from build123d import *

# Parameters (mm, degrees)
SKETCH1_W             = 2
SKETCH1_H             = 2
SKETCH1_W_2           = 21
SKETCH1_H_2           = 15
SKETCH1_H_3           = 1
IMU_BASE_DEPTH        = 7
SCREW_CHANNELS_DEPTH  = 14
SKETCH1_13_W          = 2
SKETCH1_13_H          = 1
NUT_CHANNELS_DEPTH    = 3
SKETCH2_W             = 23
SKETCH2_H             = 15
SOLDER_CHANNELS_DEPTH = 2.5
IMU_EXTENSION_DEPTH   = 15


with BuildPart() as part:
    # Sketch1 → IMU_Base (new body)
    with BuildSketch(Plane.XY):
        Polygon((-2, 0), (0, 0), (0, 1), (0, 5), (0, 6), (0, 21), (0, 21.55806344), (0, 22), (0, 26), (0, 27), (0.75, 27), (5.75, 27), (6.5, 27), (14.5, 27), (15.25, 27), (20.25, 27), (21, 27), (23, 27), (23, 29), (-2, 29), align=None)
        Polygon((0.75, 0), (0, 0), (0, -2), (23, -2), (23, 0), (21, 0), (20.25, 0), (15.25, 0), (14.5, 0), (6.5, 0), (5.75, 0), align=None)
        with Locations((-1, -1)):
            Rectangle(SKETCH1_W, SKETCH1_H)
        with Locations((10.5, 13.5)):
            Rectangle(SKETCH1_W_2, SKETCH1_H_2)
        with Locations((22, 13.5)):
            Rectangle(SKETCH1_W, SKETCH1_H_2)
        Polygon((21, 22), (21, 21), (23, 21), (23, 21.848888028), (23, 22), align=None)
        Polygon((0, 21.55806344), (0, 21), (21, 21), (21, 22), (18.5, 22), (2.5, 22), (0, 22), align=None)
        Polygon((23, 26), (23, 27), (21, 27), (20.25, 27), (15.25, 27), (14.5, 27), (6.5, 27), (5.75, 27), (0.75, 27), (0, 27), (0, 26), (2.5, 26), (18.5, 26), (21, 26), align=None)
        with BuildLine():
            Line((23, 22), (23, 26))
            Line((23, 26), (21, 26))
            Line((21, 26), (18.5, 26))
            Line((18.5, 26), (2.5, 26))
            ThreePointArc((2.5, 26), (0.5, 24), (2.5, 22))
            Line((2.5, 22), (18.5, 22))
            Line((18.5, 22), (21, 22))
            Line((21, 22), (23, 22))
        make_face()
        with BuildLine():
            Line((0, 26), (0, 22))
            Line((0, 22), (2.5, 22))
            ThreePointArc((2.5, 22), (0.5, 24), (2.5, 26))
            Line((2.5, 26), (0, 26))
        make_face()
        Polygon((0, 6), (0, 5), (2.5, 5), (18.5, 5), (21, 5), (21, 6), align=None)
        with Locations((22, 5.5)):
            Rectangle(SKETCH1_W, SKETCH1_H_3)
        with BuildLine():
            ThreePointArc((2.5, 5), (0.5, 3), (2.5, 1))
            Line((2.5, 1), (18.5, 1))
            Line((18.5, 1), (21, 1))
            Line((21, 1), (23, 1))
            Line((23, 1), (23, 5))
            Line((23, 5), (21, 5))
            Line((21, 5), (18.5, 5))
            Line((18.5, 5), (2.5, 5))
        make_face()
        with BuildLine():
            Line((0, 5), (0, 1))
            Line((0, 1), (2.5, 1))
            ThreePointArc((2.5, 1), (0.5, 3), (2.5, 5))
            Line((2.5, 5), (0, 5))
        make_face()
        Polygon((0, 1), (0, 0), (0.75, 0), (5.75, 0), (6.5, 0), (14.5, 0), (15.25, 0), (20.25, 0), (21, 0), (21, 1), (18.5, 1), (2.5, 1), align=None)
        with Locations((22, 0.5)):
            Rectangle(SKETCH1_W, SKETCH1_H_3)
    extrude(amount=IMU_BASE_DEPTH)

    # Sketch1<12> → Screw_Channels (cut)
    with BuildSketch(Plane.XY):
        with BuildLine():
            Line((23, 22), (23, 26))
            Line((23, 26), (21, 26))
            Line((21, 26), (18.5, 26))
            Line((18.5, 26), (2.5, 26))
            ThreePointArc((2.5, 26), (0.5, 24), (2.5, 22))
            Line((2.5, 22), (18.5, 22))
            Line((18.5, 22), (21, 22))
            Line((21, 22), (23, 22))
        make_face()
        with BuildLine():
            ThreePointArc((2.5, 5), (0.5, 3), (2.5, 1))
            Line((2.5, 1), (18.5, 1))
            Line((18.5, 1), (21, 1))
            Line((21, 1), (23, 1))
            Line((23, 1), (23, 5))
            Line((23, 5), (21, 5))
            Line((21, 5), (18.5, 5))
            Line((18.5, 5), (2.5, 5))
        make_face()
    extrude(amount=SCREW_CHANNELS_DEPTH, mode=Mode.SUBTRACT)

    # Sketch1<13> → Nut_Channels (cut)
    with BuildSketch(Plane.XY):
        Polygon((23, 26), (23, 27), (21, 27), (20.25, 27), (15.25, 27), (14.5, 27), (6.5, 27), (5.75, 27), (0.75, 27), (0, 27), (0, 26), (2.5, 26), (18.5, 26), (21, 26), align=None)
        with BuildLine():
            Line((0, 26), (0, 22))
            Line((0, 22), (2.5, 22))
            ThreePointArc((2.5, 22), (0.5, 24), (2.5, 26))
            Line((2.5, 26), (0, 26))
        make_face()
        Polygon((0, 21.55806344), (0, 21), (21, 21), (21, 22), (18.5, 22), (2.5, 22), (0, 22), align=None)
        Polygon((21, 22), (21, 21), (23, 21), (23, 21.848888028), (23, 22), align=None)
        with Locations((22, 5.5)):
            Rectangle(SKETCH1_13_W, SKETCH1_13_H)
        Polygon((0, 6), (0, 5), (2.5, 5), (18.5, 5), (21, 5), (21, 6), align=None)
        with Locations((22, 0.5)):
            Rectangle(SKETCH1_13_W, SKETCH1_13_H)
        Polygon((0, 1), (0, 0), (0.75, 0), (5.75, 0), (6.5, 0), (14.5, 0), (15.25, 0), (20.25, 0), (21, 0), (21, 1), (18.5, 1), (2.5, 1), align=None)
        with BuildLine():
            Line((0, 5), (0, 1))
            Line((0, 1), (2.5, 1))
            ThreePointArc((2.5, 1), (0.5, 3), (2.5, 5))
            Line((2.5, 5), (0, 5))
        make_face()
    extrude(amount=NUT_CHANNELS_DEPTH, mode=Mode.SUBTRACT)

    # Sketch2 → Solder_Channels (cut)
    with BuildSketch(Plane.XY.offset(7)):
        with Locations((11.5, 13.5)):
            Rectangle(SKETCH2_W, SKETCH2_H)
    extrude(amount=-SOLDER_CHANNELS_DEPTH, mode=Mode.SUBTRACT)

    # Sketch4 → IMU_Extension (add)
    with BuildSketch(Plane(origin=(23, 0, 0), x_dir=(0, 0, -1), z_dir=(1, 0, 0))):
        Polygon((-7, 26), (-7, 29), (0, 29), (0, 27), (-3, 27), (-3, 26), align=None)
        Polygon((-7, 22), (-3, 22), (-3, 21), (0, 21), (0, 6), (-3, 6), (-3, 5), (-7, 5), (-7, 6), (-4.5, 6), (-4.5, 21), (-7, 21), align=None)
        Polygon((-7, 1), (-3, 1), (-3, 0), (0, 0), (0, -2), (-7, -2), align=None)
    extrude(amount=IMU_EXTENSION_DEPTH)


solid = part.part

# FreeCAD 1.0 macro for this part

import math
import FreeCAD as App
import Part
import Sketcher
from FreeCAD import Vector


def add_polygon(sketch, points):
    """Adds a closed chain of lines whose ends are joined by coincident constraints."""
    first, n = sketch.GeometryCount, len(points)
    for a, b in zip(points, points[1:] + points[:1]):
        sketch.addGeometry(Part.LineSegment(App.Vector(*a, 0), App.Vector(*b, 0)), False)
    for i in range(n):
        sketch.addConstraint(Sketcher.Constraint("Coincident", first + i, 2, first + (i + 1) % n, 1))

doc = App.newDocument("Part")
params = doc.addObject("Spreadsheet::Sheet", "Params")
for row, (alias, value) in enumerate([
    ("sketch1_width", "25 mm"),
    ("sketch1_height", "31 mm"),
    ("pad1_length", "7 mm"),
    ("sketch2_radius", "2 mm"),
    ("sketch2_width", "20.5 mm"),
    ("pocket1_length", "14 mm"),
    ("sketch3_radius", "2 mm"),
    ("sketch3_width", "23 mm"),
    ("sketch3_height", "1 mm"),
    ("sketch3_width2", "20.5 mm"),
    ("pocket2_length", "3 mm"),
    ("sketch4_width", "23 mm"),
    ("sketch4_height", "15 mm"),
    ("pocket3_length", "2.5 mm"),
    ("sketch5_width", "3 mm"),
    ("sketch5_width2", "1 mm"),
    ("sketch5_width3", "15 mm"),
    ("sketch5_height", "4 mm"),
    ("sketch5_height2", "2.5 mm"),
    ("pad2_length", "15 mm"),
], start=1):
    params.set(f"A{row}", alias)
    params.set(f"B{row}", "=" + value)
    params.setAlias(f"B{row}", alias)

body = doc.addObject("PartDesign::Body", "Body")

sketch1 = body.newObject("Sketcher::SketchObject", "Sketch")
sketch1.AttachmentSupport = (doc.getObject("XY_Plane"), [""])
sketch1.MapMode = "FlatFace"
add_polygon(sketch1, [(23, 29), (-2, 29), (-2, -2), (23, -2)])
sketch1.addConstraint(Sketcher.Constraint("Horizontal", 0))
sketch1.addConstraint(Sketcher.Constraint("Vertical", 1))
sketch1.addConstraint(Sketcher.Constraint("Horizontal", 2))
sketch1.addConstraint(Sketcher.Constraint("Vertical", 3))
sketch1.addConstraint(Sketcher.Constraint("DistanceX", 0, 2, 0, 1, 25.0))
sketch1.addConstraint(Sketcher.Constraint("DistanceY", 1, 2, 1, 1, 31.0))
sketch1.addConstraint(Sketcher.Constraint("DistanceX", 0, 2, -1, 1, 2.0))
sketch1.addConstraint(Sketcher.Constraint("DistanceY", -1, 1, 0, 2, 29.0))
sketch1.setExpression("Constraints[8]", "Params.sketch1_width")
sketch1.setExpression("Constraints[9]", "Params.sketch1_height")
pad1 = body.newObject("PartDesign::Pad", "Pad")
pad1.Profile = sketch1
pad1.setExpression("Length", "Params.pad1_length")

sketch2 = body.newObject("Sketcher::SketchObject", "Sketch001")
sketch2.AttachmentSupport = (doc.getObject("XY_Plane"), [""])
sketch2.MapMode = "FlatFace"
sketch2.addGeometry(Part.LineSegment(Vector(23, 22, 0), Vector(23, 26, 0)), False)
sketch2.addGeometry(Part.LineSegment(Vector(23, 26, 0), Vector(2.5, 26, 0)), False)
sketch2.addGeometry(Part.ArcOfCircle(Part.Circle(Vector(2.5, 24, 0), Vector(0, 0, 1), 2), math.radians(90), math.radians(270)), False)
sketch2.addGeometry(Part.LineSegment(Vector(2.5, 22, 0), Vector(23, 22, 0)), False)
sketch2.addGeometry(Part.ArcOfCircle(Part.Circle(Vector(2.5, 3, 0), Vector(0, 0, 1), 2), math.radians(90), math.radians(270)), False)
sketch2.addGeometry(Part.LineSegment(Vector(2.5, 1, 0), Vector(23, 1, 0)), False)
sketch2.addGeometry(Part.LineSegment(Vector(23, 1, 0), Vector(23, 5, 0)), False)
sketch2.addGeometry(Part.LineSegment(Vector(23, 5, 0), Vector(2.5, 5, 0)), False)
sketch2.addConstraint(Sketcher.Constraint("Coincident", 0, 2, 1, 1))
sketch2.addConstraint(Sketcher.Constraint("Tangent", 1, 2, 2, 1))
sketch2.addConstraint(Sketcher.Constraint("Tangent", 2, 2, 3, 1))
sketch2.addConstraint(Sketcher.Constraint("Coincident", 3, 2, 0, 1))
sketch2.addConstraint(Sketcher.Constraint("Tangent", 4, 2, 5, 1))
sketch2.addConstraint(Sketcher.Constraint("Coincident", 5, 2, 6, 1))
sketch2.addConstraint(Sketcher.Constraint("Coincident", 6, 2, 7, 1))
sketch2.addConstraint(Sketcher.Constraint("Tangent", 7, 2, 4, 1))
sketch2.addConstraint(Sketcher.Constraint("Vertical", 0))
sketch2.addConstraint(Sketcher.Constraint("Horizontal", 1))
sketch2.addConstraint(Sketcher.Constraint("Horizontal", 3))
sketch2.addConstraint(Sketcher.Constraint("Horizontal", 5))
sketch2.addConstraint(Sketcher.Constraint("Vertical", 6))
sketch2.addConstraint(Sketcher.Constraint("Horizontal", 7))
sketch2.addConstraint(Sketcher.Constraint("Equal", 2, 4))
sketch2.addConstraint(Sketcher.Constraint("Vertical", 2, 3, 4, 3))
sketch2.addConstraint(Sketcher.Constraint("Vertical", 3, 2, 5, 2))
sketch2.addConstraint(Sketcher.Constraint("Radius", 2, 2.0))
sketch2.addConstraint(Sketcher.Constraint("DistanceX", 1, 2, 1, 1, 20.5))
sketch2.addConstraint(Sketcher.Constraint("DistanceY", -1, 1, 2, 3, 24.0))
sketch2.addConstraint(Sketcher.Constraint("DistanceY", -1, 1, 4, 3, 3.0))
sketch2.addConstraint(Sketcher.Constraint("DistanceX", -1, 1, 0, 2, 23.0))
sketch2.setExpression("Constraints[17]", "Params.sketch2_radius")
sketch2.setExpression("Constraints[18]", "Params.sketch2_width")
pocket1 = body.newObject("PartDesign::Pocket", "Pocket")
pocket1.Profile = sketch2
pocket1.setExpression("Length", "Params.pocket1_length")
pocket1.Reversed = True

sketch3 = body.newObject("Sketcher::SketchObject", "Sketch002")
sketch3.AttachmentSupport = (doc.getObject("XY_Plane"), [""])
sketch3.MapMode = "FlatFace"
sketch3.addGeometry(Part.LineSegment(Vector(23, 26, 0), Vector(23, 27, 0)), False)
sketch3.addGeometry(Part.LineSegment(Vector(23, 27, 0), Vector(0, 27, 0)), False)
sketch3.addGeometry(Part.LineSegment(Vector(0, 27, 0), Vector(0, 21, 0)), False)
sketch3.addGeometry(Part.LineSegment(Vector(0, 21, 0), Vector(23, 21, 0)), False)
sketch3.addGeometry(Part.LineSegment(Vector(23, 21, 0), Vector(23, 22, 0)), False)
sketch3.addGeometry(Part.LineSegment(Vector(23, 22, 0), Vector(2.5, 22, 0)), False)
sketch3.addGeometry(Part.ArcOfCircle(Part.Circle(Vector(2.5, 24, 0), Vector(0, 0, 1), 2), math.radians(90), math.radians(270)), False)
sketch3.addGeometry(Part.LineSegment(Vector(2.5, 26, 0), Vector(23, 26, 0)), False)
sketch3.addGeometry(Part.LineSegment(Vector(23, 5, 0), Vector(23, 6, 0)), False)
sketch3.addGeometry(Part.LineSegment(Vector(23, 6, 0), Vector(0, 6, 0)), False)
sketch3.addGeometry(Part.LineSegment(Vector(0, 6, 0), Vector(0, 0, 0)), False)
sketch3.addGeometry(Part.LineSegment(Vector(0, 0, 0), Vector(23, 0, 0)), False)
sketch3.addGeometry(Part.LineSegment(Vector(23, 0, 0), Vector(23, 1, 0)), False)
sketch3.addGeometry(Part.LineSegment(Vector(23, 1, 0), Vector(2.5, 1, 0)), False)
sketch3.addGeometry(Part.ArcOfCircle(Part.Circle(Vector(2.5, 3, 0), Vector(0, 0, 1), 2), math.radians(90), math.radians(270)), False)
sketch3.addGeometry(Part.LineSegment(Vector(2.5, 5, 0), Vector(23, 5, 0)), False)
sketch3.addConstraint(Sketcher.Constraint("Coincident", 0, 2, 1, 1))
sketch3.addConstraint(Sketcher.Constraint("Coincident", 1, 2, 2, 1))
sketch3.addConstraint(Sketcher.Constraint("Coincident", 2, 2, 3, 1))
sketch3.addConstraint(Sketcher.Constraint("Coincident", 3, 2, 4, 1))
sketch3.addConstraint(Sketcher.Constraint("Coincident", 4, 2, 5, 1))
sketch3.addConstraint(Sketcher.Constraint("Tangent", 5, 2, 6, 2))
sketch3.addConstraint(Sketcher.Constraint("Tangent", 6, 1, 7, 1))
sketch3.addConstraint(Sketcher.Constraint("Coincident", 7, 2, 0, 1))
sketch3.addConstraint(Sketcher.Constraint("Coincident", 8, 2, 9, 1))
sketch3.addConstraint(Sketcher.Constraint("Coincident", 9, 2, 10, 1))
sketch3.addConstraint(Sketcher.Constraint("Coincident", 10, 2, 11, 1))
sketch3.addConstraint(Sketcher.Constraint("Coincident", 11, 2, 12, 1))
sketch3.addConstraint(Sketcher.Constraint("Coincident", 12, 2, 13, 1))
sketch3.addConstraint(Sketcher.Constraint("Tangent", 13, 2, 14, 2))
sketch3.addConstraint(Sketcher.Constraint("Tangent", 14, 1, 15, 1))
sketch3.addConstraint(Sketcher.Constraint("Coincident", 15, 2, 8, 1))
sketch3.addConstraint(Sketcher.Constraint("Vertical", 0))
sketch3.addConstraint(Sketcher.Constraint("Horizontal", 1))
sketch3.addConstraint(Sketcher.Constraint("Vertical", 2))
sketch3.addConstraint(Sketcher.Constraint("Horizontal", 3))
sketch3.addConstraint(Sketcher.Constraint("Vertical", 4))
sketch3.addConstraint(Sketcher.Constraint("Horizontal", 5))
sketch3.addConstraint(Sketcher.Constraint("Horizontal", 7))
sketch3.addConstraint(Sketcher.Constraint("Vertical", 8))
sketch3.addConstraint(Sketcher.Constraint("Horizontal", 9))
sketch3.addConstraint(Sketcher.Constraint("Vertical", 10))
sketch3.addConstraint(Sketcher.Constraint("Horizontal", 11))
sketch3.addConstraint(Sketcher.Constraint("Vertical", 12))
sketch3.addConstraint(Sketcher.Constraint("Horizontal", 13))
sketch3.addConstraint(Sketcher.Constraint("Horizontal", 15))
sketch3.addConstraint(Sketcher.Constraint("Coincident", 10, 2, -1, 1))
sketch3.addConstraint(Sketcher.Constraint("Equal", 6, 14))
sketch3.addConstraint(Sketcher.Constraint("PointOnObject", 1, 2, -2))
sketch3.addConstraint(Sketcher.Constraint("Vertical", 6, 3, 14, 3))
sketch3.addConstraint(Sketcher.Constraint("Vertical", 0, 2, 3, 2))
sketch3.addConstraint(Sketcher.Constraint("Vertical", 7, 2, 8, 2))
sketch3.addConstraint(Sketcher.Constraint("Vertical", 8, 2, 11, 2))
sketch3.addConstraint(Sketcher.Constraint("Equal", 0, 4))
sketch3.addConstraint(Sketcher.Constraint("Equal", 4, 8))
sketch3.addConstraint(Sketcher.Constraint("Equal", 2, 10))
sketch3.addConstraint(Sketcher.Constraint("Radius", 6, 2.0))
sketch3.addConstraint(Sketcher.Constraint("DistanceX", 1, 2, 1, 1, 23.0))
sketch3.addConstraint(Sketcher.Constraint("DistanceY", 0, 1, 0, 2, 1.0))
sketch3.addConstraint(Sketcher.Constraint("DistanceX", 5, 2, 5, 1, 20.5))
sketch3.addConstraint(Sketcher.Constraint("DistanceY", -1, 1, 6, 3, 24.0))
sketch3.setExpression("Constraints[40]", "Params.sketch3_radius")
sketch3.setExpression("Constraints[41]", "Params.sketch3_width")
sketch3.setExpression("Constraints[42]", "Params.sketch3_height")
sketch3.setExpression("Constraints[43]", "Params.sketch3_width2")
pocket2 = body.newObject("PartDesign::Pocket", "Pocket001")
pocket2.Profile = sketch3
pocket2.setExpression("Length", "Params.pocket2_length")
pocket2.Reversed = True

sketch4 = body.newObject("Sketcher::SketchObject", "Sketch003")
sketch4.AttachmentSupport = (doc.getObject("XY_Plane"), [""])
sketch4.MapMode = "FlatFace"
sketch4.AttachmentOffset = App.Placement(Vector(0, 0, 7), App.Rotation())
add_polygon(sketch4, [(0, 21), (0, 6), (23, 6), (23, 21)])
sketch4.addConstraint(Sketcher.Constraint("Vertical", 0))
sketch4.addConstraint(Sketcher.Constraint("Horizontal", 1))
sketch4.addConstraint(Sketcher.Constraint("Vertical", 2))
sketch4.addConstraint(Sketcher.Constraint("Horizontal", 3))
sketch4.addConstraint(Sketcher.Constraint("PointOnObject", 0, 2, -2))
sketch4.addConstraint(Sketcher.Constraint("DistanceX", 1, 1, 1, 2, 23.0))
sketch4.addConstraint(Sketcher.Constraint("DistanceY", 0, 2, 0, 1, 15.0))
sketch4.addConstraint(Sketcher.Constraint("DistanceY", -1, 1, 0, 2, 6.0))
sketch4.setExpression("Constraints[9]", "Params.sketch4_width")
sketch4.setExpression("Constraints[10]", "Params.sketch4_height")
pocket3 = body.newObject("PartDesign::Pocket", "Pocket002")
pocket3.Profile = sketch4
pocket3.setExpression("Length", "Params.pocket3_length")

sketch5 = body.newObject("Sketcher::SketchObject", "Sketch004")
sketch5.AttachmentSupport = (doc.getObject("YZ_Plane"), [""])
sketch5.MapMode = "FlatFace"
sketch5.AttachmentOffset = App.Placement(Vector(0, 0, 23), App.Rotation())
add_polygon(sketch5, [(29, 7), (26, 7), (26, 3), (27, 3), (27, 0), (29, 0)])
add_polygon(sketch5, [(22, 3), (22, 7), (21, 7), (21, 4.5), (6, 4.5), (6, 7), (5, 7), (5, 3), (6, 3), (6, 0), (21, 0), (21, 3)])
add_polygon(sketch5, [(1, 3), (1, 7), (-2, 7), (-2, 0), (0, 0), (0, 3)])
sketch5.addConstraint(Sketcher.Constraint("Horizontal", 0))
sketch5.addConstraint(Sketcher.Constraint("Vertical", 1))
sketch5.addConstraint(Sketcher.Constraint("Horizontal", 2))
sketch5.addConstraint(Sketcher.Constraint("Vertical", 3))
sketch5.addConstraint(Sketcher.Constraint("Horizontal", 4))
sketch5.addConstraint(Sketcher.Constraint("Vertical", 5))
sketch5.addConstraint(Sketcher.Constraint("Vertical", 6))
sketch5.addConstraint(Sketcher.Constraint("Horizontal", 7))
sketch5.addConstraint(Sketcher.Constraint("Vertical", 8))
sketch5.addConstraint(Sketcher.Constraint("Horizontal", 9))
sketch5.addConstraint(Sketcher.Constraint("Vertical", 10))
sketch5.addConstraint(Sketcher.Constraint("Horizontal", 11))
sketch5.addConstraint(Sketcher.Constraint("Vertical", 12))
sketch5.addConstraint(Sketcher.Constraint("Horizontal", 13))
sketch5.addConstraint(Sketcher.Constraint("Vertical", 14))
sketch5.addConstraint(Sketcher.Constraint("Horizontal", 15))
sketch5.addConstraint(Sketcher.Constraint("Vertical", 16))
sketch5.addConstraint(Sketcher.Constraint("Horizontal", 17))
sketch5.addConstraint(Sketcher.Constraint("Vertical", 18))
sketch5.addConstraint(Sketcher.Constraint("Horizontal", 19))
sketch5.addConstraint(Sketcher.Constraint("Vertical", 20))
sketch5.addConstraint(Sketcher.Constraint("Horizontal", 21))
sketch5.addConstraint(Sketcher.Constraint("Vertical", 22))
sketch5.addConstraint(Sketcher.Constraint("Horizontal", 23))
sketch5.addConstraint(Sketcher.Constraint("Coincident", 21, 2, -1, 1))
sketch5.addConstraint(Sketcher.Constraint("PointOnObject", 3, 2, -1))
sketch5.addConstraint(Sketcher.Constraint("PointOnObject", 14, 2, -1))
sketch5.addConstraint(Sketcher.Constraint("Horizontal", 5, 2, 6, 2))
sketch5.addConstraint(Sketcher.Constraint("Horizontal", 7, 2, 10, 2))
sketch5.addConstraint(Sketcher.Constraint("Horizontal", 2, 2, 12, 2))
sketch5.addConstraint(Sketcher.Constraint("Horizontal", 13, 2, 16, 2))
sketch5.addConstraint(Sketcher.Constraint("Horizontal", 11, 2, 18, 2))
sketch5.addConstraint(Sketcher.Constraint("Horizontal", 17, 2, 22, 2))
sketch5.addConstraint(Sketcher.Constraint("Vertical", 10, 2, 13, 2))
sketch5.addConstraint(Sketcher.Constraint("Vertical", 8, 2, 15, 2))
sketch5.addConstraint(Sketcher.Constraint("Equal", 2, 7))
sketch5.addConstraint(Sketcher.Constraint("Equal", 7, 11))
sketch5.addConstraint(Sketcher.Constraint("Equal", 0, 19))
sketch5.addConstraint(Sketcher.Constraint("Equal", 4, 21))
sketch5.addConstraint(Sketcher.Constraint("Equal", 19, 3))
sketch5.addConstraint(Sketcher.Constraint("DistanceX", 0, 2, 0, 1, 3.0))
sketch5.addConstraint(Sketcher.Constraint("DistanceX", 2, 1, 2, 2, 1.0))
sketch5.addConstraint(Sketcher.Constraint("DistanceX", 9, 2, 9, 1, 15.0))
sketch5.addConstraint(Sketcher.Constraint("DistanceY", 1, 2, 1, 1, 4.0))
sketch5.addConstraint(Sketcher.Constraint("DistanceY", 8, 2, 8, 1, 2.5))
sketch5.addConstraint(Sketcher.Constraint("DistanceX", -1, 1, 0, 2, 26.0))
sketch5.addConstraint(Sketcher.Constraint("DistanceX", -1, 1, 6, 2, 22.0))
sketch5.setExpression("Constraints[64]", "Params.sketch5_width")
sketch5.setExpression("Constraints[65]", "Params.sketch5_width2")
sketch5.setExpression("Constraints[66]", "Params.sketch5_width3")
sketch5.setExpression("Constraints[67]", "Params.sketch5_height")
sketch5.setExpression("Constraints[68]", "Params.sketch5_height2")
pad2 = body.newObject("PartDesign::Pad", "Pad001")
pad2.Profile = sketch5
pad2.setExpression("Length", "Params.pad2_length")

doc.recompute()
